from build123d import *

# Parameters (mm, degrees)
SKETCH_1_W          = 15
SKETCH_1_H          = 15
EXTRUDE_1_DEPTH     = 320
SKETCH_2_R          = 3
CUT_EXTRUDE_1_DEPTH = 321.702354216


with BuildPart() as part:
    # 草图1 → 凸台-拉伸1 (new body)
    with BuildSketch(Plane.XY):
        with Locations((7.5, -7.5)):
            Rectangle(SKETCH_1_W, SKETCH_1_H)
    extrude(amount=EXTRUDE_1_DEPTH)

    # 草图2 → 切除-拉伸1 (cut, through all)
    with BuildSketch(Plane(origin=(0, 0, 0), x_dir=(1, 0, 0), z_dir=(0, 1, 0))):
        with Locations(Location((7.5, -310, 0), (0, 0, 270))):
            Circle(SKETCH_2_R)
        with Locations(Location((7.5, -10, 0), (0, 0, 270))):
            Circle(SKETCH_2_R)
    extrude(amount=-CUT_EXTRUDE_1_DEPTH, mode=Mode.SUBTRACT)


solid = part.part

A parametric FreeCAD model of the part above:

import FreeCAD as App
import Part
import Sketcher
from FreeCAD import Vector

doc = App.newDocument("Part")
body = doc.addObject("PartDesign::Body", "Body")

sketch1 = body.newObject("Sketcher::SketchObject", "Sketch")
sketch1.AttachmentSupport = (doc.getObject("XY_Plane"), [""])
sketch1.MapMode = "FlatFace"
sketch1.addGeometry([
    Part.LineSegment(Vector(0, 0, 0), Vector(0, -15, 0)),
    Part.LineSegment(Vector(0, -15, 0), Vector(15, -15, 0)),
    Part.LineSegment(Vector(15, -15, 0), Vector(15, 0, 0)),
    Part.LineSegment(Vector(15, 0, 0), Vector(0, 0, 0)),
], False)
sketch1.addConstraint([
    Sketcher.Constraint("Coincident", 0, 2, 1, 1),
    Sketcher.Constraint("Coincident", 1, 2, 2, 1),
    Sketcher.Constraint("Coincident", 2, 2, 3, 1),
    Sketcher.Constraint("Coincident", 3, 2, 0, 1),
    Sketcher.Constraint("Vertical", 0),
    Sketcher.Constraint("Horizontal", 1),
    Sketcher.Constraint("Vertical", 2),
    Sketcher.Constraint("Horizontal", 3),
    Sketcher.Constraint("Coincident", 3, 2, -1, 1),
    Sketcher.Constraint("Equal", 3, 0),
    Sketcher.Constraint("DistanceX", 1, 1, 1, 2, 15.0),
])
pad1 = body.newObject("PartDesign::Pad", "Pad")
pad1.Profile = sketch1
pad1.Length = 320

sketch2 = body.newObject("Sketcher::SketchObject", "Sketch001")
sketch2.AttachmentSupport = (doc.getObject("XZ_Plane"), [""])
sketch2.MapMode = "FlatFace"
sketch2.addGeometry([
    Part.Circle(Vector(7.5, 310, 0), Vector(0, 0, 1), 3),
    Part.Circle(Vector(7.5, 10, 0), Vector(0, 0, 1), 3),
], False)
sketch2.addConstraint([
    Sketcher.Constraint("Equal", 0, 1),
    Sketcher.Constraint("Vertical", 0, 3, 1, 3),
    Sketcher.Constraint("Diameter", 0, 6.0),
    Sketcher.Constraint("DistanceY", -1, 1, 0, 3, 310.0),
    Sketcher.Constraint("DistanceY", -1, 1, 1, 3, 10.0),
    Sketcher.Constraint("DistanceX", -1, 1, 0, 3, 7.5),
])
pocket1 = body.newObject("PartDesign::Pocket", "Pocket")
pocket1.Profile = sketch2
pocket1.Type = "ThroughAll"
pocket1.Reversed = True

doc.recompute()
